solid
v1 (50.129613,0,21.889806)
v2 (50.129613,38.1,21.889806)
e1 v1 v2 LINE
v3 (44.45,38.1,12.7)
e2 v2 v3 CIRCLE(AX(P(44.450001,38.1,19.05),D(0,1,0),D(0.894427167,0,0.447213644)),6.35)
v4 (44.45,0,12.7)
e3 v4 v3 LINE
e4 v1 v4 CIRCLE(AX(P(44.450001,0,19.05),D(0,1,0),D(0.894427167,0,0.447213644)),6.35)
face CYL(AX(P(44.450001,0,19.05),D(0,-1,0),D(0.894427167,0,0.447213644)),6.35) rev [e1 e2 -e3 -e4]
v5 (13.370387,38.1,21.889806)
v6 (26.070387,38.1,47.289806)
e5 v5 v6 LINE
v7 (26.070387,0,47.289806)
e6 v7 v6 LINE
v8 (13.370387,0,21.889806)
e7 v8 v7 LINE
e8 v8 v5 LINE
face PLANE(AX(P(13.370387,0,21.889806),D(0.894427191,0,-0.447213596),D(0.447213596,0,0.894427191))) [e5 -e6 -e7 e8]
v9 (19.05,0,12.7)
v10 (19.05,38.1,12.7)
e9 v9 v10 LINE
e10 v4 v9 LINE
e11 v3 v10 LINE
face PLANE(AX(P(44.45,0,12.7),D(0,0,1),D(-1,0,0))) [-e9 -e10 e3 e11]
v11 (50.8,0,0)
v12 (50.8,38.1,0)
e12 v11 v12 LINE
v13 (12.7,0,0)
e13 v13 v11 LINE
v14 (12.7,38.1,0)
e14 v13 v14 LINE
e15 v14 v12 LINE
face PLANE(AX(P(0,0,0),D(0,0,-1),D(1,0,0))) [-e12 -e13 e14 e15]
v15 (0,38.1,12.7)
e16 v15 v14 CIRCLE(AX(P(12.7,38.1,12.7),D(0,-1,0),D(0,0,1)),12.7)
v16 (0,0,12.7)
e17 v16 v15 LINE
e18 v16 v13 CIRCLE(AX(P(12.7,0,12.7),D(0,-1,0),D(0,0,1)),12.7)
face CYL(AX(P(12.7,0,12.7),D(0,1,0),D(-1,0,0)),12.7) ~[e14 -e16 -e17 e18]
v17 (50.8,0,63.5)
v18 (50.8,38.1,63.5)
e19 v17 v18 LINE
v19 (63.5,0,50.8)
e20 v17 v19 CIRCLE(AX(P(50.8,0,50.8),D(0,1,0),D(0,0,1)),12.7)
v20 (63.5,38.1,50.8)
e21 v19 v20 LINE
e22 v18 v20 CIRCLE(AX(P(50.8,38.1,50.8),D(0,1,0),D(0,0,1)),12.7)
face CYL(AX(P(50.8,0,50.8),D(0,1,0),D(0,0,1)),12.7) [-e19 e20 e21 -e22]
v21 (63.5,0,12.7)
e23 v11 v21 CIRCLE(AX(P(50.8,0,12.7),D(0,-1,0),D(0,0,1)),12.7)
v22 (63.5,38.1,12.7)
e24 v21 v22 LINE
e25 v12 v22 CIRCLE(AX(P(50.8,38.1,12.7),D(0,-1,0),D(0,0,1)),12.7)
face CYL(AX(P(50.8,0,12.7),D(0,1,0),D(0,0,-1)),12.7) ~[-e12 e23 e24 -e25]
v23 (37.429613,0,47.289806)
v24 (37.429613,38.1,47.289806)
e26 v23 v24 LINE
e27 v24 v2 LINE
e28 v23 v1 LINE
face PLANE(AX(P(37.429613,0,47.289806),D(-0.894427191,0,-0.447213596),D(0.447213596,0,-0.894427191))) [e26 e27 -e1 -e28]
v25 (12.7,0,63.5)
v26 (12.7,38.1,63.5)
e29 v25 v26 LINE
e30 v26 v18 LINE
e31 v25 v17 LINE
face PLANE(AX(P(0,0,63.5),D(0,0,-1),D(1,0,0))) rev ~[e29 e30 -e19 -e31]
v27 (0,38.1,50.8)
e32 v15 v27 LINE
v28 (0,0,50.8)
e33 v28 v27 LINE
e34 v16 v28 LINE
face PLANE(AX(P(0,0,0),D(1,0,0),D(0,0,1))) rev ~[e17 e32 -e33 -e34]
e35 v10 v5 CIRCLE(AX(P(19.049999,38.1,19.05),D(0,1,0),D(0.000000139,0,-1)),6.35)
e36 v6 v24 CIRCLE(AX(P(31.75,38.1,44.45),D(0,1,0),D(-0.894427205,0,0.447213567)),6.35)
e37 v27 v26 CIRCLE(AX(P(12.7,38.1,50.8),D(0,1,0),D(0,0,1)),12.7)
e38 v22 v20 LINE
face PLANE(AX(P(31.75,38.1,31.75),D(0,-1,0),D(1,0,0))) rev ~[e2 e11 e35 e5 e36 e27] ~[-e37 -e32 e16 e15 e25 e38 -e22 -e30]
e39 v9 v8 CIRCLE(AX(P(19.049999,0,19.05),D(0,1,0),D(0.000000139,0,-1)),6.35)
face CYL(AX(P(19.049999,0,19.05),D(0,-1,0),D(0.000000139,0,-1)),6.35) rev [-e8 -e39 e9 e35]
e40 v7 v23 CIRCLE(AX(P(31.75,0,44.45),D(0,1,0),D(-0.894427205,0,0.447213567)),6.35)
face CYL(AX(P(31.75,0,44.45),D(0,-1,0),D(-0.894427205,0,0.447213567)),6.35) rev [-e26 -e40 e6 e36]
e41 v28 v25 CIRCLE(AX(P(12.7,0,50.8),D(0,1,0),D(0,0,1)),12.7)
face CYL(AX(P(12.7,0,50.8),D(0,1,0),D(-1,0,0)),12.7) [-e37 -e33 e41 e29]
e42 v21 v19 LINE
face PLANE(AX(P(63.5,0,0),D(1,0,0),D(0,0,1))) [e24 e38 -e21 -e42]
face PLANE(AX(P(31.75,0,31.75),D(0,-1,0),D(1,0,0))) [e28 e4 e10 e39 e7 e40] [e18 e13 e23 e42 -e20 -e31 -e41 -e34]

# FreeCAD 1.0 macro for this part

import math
import FreeCAD as App
import Part
import Sketcher
Q = App.Units.Quantity


def edges_at(feature, points):
    """Names of the edges that pass closest to the given points."""
    edges = feature.Shape.Edges
    near = lambda p: min(range(len(edges)), key=lambda i: edges[i].distToShape(Part.Vertex(*p))[0])
    return sorted({f"Edge{near(p) + 1}" for p in points})

doc = App.newDocument("Part")
params = doc.addObject("Spreadsheet::Sheet", "Params")
for row, (alias, value) in enumerate([
    ("sketch1_width", "1 in"),
    ("sketch1_radius", "0.25 in"),
    ("sketch1_width2", "2.5 in"),
    ("pad1_length", "1.5 in"),
    ("fillet_radius", "0.5 in"),
], start=1):
    params.set(f"A{row}", alias)
    params.set(f"B{row}", "=" + value)
    params.setAlias(f"B{row}", alias)

body = doc.addObject("PartDesign::Body", "Body")

# Sketch on XZ plane
sketch1 = body.newObject("Sketcher::SketchObject", "Sketch")
sketch1.AttachmentSupport = (doc.getObject("XZ_Plane"), [""])
sketch1.MapMode = "FlatFace"
sketch1.addGeometry([
    Part.LineSegment(App.Vector(0, 64, 0), App.Vector(0, 0, 0)),  # 0
    Part.LineSegment(App.Vector(0, 0, 0), App.Vector(64, 0, 0)),  # 1
    Part.LineSegment(App.Vector(64, 0, 0), App.Vector(64, 64, 0)),  # 2
    Part.LineSegment(App.Vector(64, 64, 0), App.Vector(0, 64, 0)),  # 3
    Part.LineSegment(App.Vector(44, 13, 0), App.Vector(19, 13, 0)),  # 4
    Part.ArcOfCircle(Part.Circle(App.Vector(19, 19, 0), App.Vector(0, 0, 1), 6), math.radians(153), math.radians(270)),  # 5
    Part.LineSegment(App.Vector(13, 22, 0), App.Vector(26, 47, 0)),  # 6
    Part.ArcOfCircle(Part.Circle(App.Vector(32, 44, 0), App.Vector(0, 0, 1), 6), math.radians(27), math.radians(153)),  # 7
    Part.LineSegment(App.Vector(37, 47, 0), App.Vector(50, 22, 0)),  # 8
    Part.ArcOfCircle(Part.Circle(App.Vector(44, 19, 0), App.Vector(0, 0, 1), 6), math.radians(-90), math.radians(27)),  # 9
], False)
sketch1.addConstraint([
    Sketcher.Constraint("Coincident", 0, 2, 1, 1),
    Sketcher.Constraint("Coincident", 1, 2, 2, 1),
    Sketcher.Constraint("Coincident", 2, 2, 3, 1),
    Sketcher.Constraint("Coincident", 3, 2, 0, 1),
    Sketcher.Constraint("Tangent", 4, 2, 5, 2),
    Sketcher.Constraint("Tangent", 5, 1, 6, 1),
    Sketcher.Constraint("Tangent", 6, 2, 7, 2),
    Sketcher.Constraint("Tangent", 7, 1, 8, 1),
    Sketcher.Constraint("Tangent", 8, 2, 9, 2),
    Sketcher.Constraint("Tangent", 9, 1, 4, 1),
    Sketcher.Constraint("Vertical", 0),
    Sketcher.Constraint("Horizontal", 1),
    Sketcher.Constraint("Vertical", 2),
    Sketcher.Constraint("Horizontal", 3),
    Sketcher.Constraint("Horizontal", 4),
    Sketcher.Constraint("Coincident", 0, 2, -1, 1),
    Sketcher.Constraint("Equal", 5, 7),
    Sketcher.Constraint("Equal", 7, 9),
    Sketcher.Constraint("Horizontal", 6, 2, 7, 1),
    Sketcher.Constraint("Equal", 3, 0),
    Sketcher.Constraint("DistanceX", 4, 2, 4, 1, Q("1 in")),
    Sketcher.Constraint("Radius", 5, Q("0.25 in")),
    Sketcher.Constraint("DistanceX", 1, 1, 1, 2, Q("2.5 in")),
    Sketcher.Constraint("DistanceY", 5, 3, 7, 3, Q("1 in")),
    Sketcher.Constraint("DistanceY", -1, 1, 4, 2, Q("0.5 in")),
    Sketcher.Constraint("DistanceX", -1, 1, 5, 3, Q("0.75 in")),
])
sketch1.setExpression("Constraints[20]", "Params.sketch1_width")
sketch1.setExpression("Constraints[21]", "Params.sketch1_radius")
sketch1.setExpression("Constraints[22]", "Params.sketch1_width2")
pad1 = body.newObject("PartDesign::Pad", "Pad")
pad1.Profile = sketch1
pad1.setExpression("Length", "Params.pad1_length")
pad1.Reversed = True
doc.recompute()

fillet = body.newObject("PartDesign::Fillet", "Fillet")
fillet.Base = (pad1, edges_at(pad1, [
    (63.5, 19.05, 63.5),
    (63.5, 19.05, 0),
    (0, 19.05, 0),
    (0, 19.05, 63.5),
]))
fillet.setExpression("Radius", "Params.fillet_radius")

doc.recompute()
